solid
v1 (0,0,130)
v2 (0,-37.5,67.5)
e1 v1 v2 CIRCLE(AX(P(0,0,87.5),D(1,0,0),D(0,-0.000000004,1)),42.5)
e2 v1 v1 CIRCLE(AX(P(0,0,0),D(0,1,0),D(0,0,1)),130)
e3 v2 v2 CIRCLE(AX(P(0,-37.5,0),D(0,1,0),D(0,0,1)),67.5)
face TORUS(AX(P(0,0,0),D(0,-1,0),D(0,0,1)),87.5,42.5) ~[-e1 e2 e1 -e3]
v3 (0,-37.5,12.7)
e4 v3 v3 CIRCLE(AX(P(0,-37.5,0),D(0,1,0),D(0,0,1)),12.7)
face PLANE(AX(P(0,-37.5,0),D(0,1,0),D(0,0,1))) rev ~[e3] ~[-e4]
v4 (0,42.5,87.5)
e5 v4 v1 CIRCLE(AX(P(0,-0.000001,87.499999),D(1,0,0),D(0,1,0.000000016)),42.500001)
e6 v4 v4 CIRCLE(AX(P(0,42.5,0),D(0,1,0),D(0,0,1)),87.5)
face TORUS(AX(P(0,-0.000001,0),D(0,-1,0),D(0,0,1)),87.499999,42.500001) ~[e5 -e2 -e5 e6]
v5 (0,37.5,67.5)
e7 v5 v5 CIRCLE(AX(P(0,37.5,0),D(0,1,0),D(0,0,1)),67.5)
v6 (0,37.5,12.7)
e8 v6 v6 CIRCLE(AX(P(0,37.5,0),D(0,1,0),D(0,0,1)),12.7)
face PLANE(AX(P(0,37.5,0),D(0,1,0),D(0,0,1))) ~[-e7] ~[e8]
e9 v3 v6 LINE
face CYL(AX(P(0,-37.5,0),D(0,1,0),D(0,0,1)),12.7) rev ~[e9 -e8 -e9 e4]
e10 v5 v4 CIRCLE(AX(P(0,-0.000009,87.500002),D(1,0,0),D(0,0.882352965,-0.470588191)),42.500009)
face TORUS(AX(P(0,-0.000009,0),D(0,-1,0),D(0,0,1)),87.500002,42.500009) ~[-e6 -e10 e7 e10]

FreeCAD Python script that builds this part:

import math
import FreeCAD as App
import Part
import Sketcher

V = App.Vector
Q = App.Units.Quantity

doc = App.newDocument("Part")
body = doc.addObject("PartDesign::Body", "Body")

sketch1 = body.newObject("Sketcher::SketchObject", "Sketch")
sketch1.AttachmentSupport = (doc.getObject("YZ_Plane"), [""])
sketch1.MapMode = "FlatFace"
sketch1.addGeometry([
    Part.LineSegment(V(-38, 13, 0), V(38, 13, 0)),
    Part.LineSegment(V(38, 13, 0), V(38, 68, 0)),
    Part.ArcOfCircle(Part.Circle(V(0, 88, 0), V(0, 0, 1), 43), math.radians(-28), math.radians(0)),
    Part.ArcOfCircle(Part.Circle(V(0, 87, 0), V(0, 0, 1), 43), math.radians(0), math.radians(90)),
    Part.ArcOfCircle(Part.Circle(V(0, 87, 0), V(0, 0, 1), 43), math.radians(90), math.radians(208)),
    Part.LineSegment(V(-38, 68, 0), V(-38, 13, 0)),
], False)
sketch1.addConstraint([
    Sketcher.Constraint("Coincident", 0, 2, 1, 1),
    Sketcher.Constraint("Coincident", 1, 2, 2, 1),
    Sketcher.Constraint("Tangent", 2, 2, 3, 1),
    Sketcher.Constraint("Tangent", 3, 2, 4, 1),
    Sketcher.Constraint("Coincident", 4, 2, 5, 1),
    Sketcher.Constraint("Coincident", 5, 2, 0, 1),
    Sketcher.Constraint("Horizontal", 0),
    Sketcher.Constraint("Vertical", 1),
    Sketcher.Constraint("Vertical", 5),
    Sketcher.Constraint("Coincident", 4, 3, 2, 3),
    Sketcher.Constraint("Symmetric", 1, 2, 4, 2, -2),
    Sketcher.Constraint("PointOnObject", 3, 2, -2),
    Sketcher.Constraint("Horizontal", 4, 3, 2, 2),
    Sketcher.Constraint("Radius", 3, Q("42.500001 mm")),
    Sketcher.Constraint("DistanceX", 0, 1, 0, 2, Q("75 mm")),
    Sketcher.Constraint("DistanceY", 1, 1, 1, 2, Q("54.8 mm")),
    Sketcher.Constraint("DistanceY", -1, 1, 3, 2, Q("130 mm")),
])
revolution = body.newObject("PartDesign::Revolution", "Revolution")
revolution.Profile = sketch1
revolution.ReferenceAxis = (sketch1, ["H_Axis"])
revolution.Angle = 360

doc.recompute()
